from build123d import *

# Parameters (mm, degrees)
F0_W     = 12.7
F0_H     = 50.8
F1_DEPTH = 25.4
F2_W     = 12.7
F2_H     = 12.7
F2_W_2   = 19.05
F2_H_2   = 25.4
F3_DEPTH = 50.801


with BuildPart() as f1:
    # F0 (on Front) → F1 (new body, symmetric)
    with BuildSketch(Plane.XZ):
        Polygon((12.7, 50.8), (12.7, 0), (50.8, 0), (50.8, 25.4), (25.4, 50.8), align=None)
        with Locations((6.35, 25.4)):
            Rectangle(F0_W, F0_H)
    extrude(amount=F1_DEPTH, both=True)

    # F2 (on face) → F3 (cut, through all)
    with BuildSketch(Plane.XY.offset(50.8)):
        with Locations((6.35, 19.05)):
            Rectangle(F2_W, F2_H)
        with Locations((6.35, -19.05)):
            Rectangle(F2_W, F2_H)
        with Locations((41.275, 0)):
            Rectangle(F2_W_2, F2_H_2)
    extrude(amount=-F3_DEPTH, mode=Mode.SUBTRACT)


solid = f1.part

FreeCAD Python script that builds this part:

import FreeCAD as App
import Part
import Sketcher

V = App.Vector
Q = App.Units.Quantity


def add_polygon(sketch, points):
    """Adds a closed chain of lines whose ends are joined by coincident constraints."""
    first, n = sketch.GeometryCount, len(points)
    for a, b in zip(points, points[1:] + points[:1]):
        sketch.addGeometry(Part.LineSegment(App.Vector(*a, 0), App.Vector(*b, 0)), False)
    for i in range(n):
        sketch.addConstraint(Sketcher.Constraint("Coincident", first + i, 2, first + (i + 1) % n, 1))

doc = App.newDocument("Part")
body = doc.addObject("PartDesign::Body", "Body")

# Sketch on XZ plane
sketch1 = body.newObject("Sketcher::SketchObject", "Sketch")
sketch1.AttachmentSupport = (doc.getObject("XZ_Plane"), [""])
sketch1.MapMode = "FlatFace"
add_polygon(sketch1, [(51, 0), (51, 25), (25, 51), (0, 51), (0, 0)])  # lines 0-4
sketch1.addConstraint([
    Sketcher.Constraint("Vertical", 0),
    Sketcher.Constraint("Horizontal", 2),
    Sketcher.Constraint("Vertical", 3),
    Sketcher.Constraint("Horizontal", 4),
    Sketcher.Constraint("Coincident", 3, 2, -1, 1),
    Sketcher.Constraint("Equal", 2, 0),
    Sketcher.Constraint("Equal", 4, 3),
    Sketcher.Constraint("DistanceX", 2, 2, 2, 1, Q("1 in")),
    Sketcher.Constraint("DistanceX", 4, 1, 4, 2, Q("2 in")),
])
pad1 = body.newObject("PartDesign::Pad", "Pad")
pad1.Profile = sketch1
pad1.Length = Q("2 in")
pad1.Midplane = True

# Sketch on XY plane
sketch2 = body.newObject("Sketcher::SketchObject", "Sketch001")
sketch2.AttachmentSupport = (doc.getObject("XY_Plane"), [""])
sketch2.MapMode = "FlatFace"
sketch2.AttachmentOffset = App.Placement(V(0, 0, 2 * 25.4), App.Rotation())
add_polygon(sketch2, [(0, 25), (0, 13), (13, 13), (13, 25)])  # lines 0-3
add_polygon(sketch2, [(0, -13), (0, -25), (13, -25), (13, -13)])  # lines 4-7
add_polygon(sketch2, [(32, 13), (32, -13), (51, -13), (51, 13)])  # lines 8-11
sketch2.addConstraint([
    Sketcher.Constraint("Vertical", 0),
    Sketcher.Constraint("Horizontal", 1),
    Sketcher.Constraint("Vertical", 2),
    Sketcher.Constraint("Horizontal", 3),
    Sketcher.Constraint("Vertical", 4),
    Sketcher.Constraint("Horizontal", 5),
    Sketcher.Constraint("Vertical", 6),
    Sketcher.Constraint("Horizontal", 7),
    Sketcher.Constraint("Vertical", 8),
    Sketcher.Constraint("Horizontal", 9),
    Sketcher.Constraint("Vertical", 10),
    Sketcher.Constraint("Horizontal", 11),
    Sketcher.Constraint("Symmetric", 3, 2, 4, 2, -1, 1),
    Sketcher.Constraint("Symmetric", 1, 2, 6, 2, -1),
    Sketcher.Constraint("PointOnObject", 0, 2, -2),
    Sketcher.Constraint("Horizontal", 7, 2, 8, 2),
    Sketcher.Constraint("Horizontal", 1, 2, 10, 2),
    Sketcher.Constraint("Equal", 7, 0),
    Sketcher.Constraint("DistanceY", 8, 2, 8, 1, Q("1 in")),
    Sketcher.Constraint("DistanceX", 1, 1, 1, 2, Q("0.5 in")),
    Sketcher.Constraint("DistanceX", -1, 1, 9, 2, Q("2 in")),
    Sketcher.Constraint("DistanceX", 9, 1, 9, 2, Q("0.75 in")),
])
pocket1 = body.newObject("PartDesign::Pocket", "Pocket")
pocket1.Profile = sketch2
pocket1.Type = "ThroughAll"

doc.recompute()
